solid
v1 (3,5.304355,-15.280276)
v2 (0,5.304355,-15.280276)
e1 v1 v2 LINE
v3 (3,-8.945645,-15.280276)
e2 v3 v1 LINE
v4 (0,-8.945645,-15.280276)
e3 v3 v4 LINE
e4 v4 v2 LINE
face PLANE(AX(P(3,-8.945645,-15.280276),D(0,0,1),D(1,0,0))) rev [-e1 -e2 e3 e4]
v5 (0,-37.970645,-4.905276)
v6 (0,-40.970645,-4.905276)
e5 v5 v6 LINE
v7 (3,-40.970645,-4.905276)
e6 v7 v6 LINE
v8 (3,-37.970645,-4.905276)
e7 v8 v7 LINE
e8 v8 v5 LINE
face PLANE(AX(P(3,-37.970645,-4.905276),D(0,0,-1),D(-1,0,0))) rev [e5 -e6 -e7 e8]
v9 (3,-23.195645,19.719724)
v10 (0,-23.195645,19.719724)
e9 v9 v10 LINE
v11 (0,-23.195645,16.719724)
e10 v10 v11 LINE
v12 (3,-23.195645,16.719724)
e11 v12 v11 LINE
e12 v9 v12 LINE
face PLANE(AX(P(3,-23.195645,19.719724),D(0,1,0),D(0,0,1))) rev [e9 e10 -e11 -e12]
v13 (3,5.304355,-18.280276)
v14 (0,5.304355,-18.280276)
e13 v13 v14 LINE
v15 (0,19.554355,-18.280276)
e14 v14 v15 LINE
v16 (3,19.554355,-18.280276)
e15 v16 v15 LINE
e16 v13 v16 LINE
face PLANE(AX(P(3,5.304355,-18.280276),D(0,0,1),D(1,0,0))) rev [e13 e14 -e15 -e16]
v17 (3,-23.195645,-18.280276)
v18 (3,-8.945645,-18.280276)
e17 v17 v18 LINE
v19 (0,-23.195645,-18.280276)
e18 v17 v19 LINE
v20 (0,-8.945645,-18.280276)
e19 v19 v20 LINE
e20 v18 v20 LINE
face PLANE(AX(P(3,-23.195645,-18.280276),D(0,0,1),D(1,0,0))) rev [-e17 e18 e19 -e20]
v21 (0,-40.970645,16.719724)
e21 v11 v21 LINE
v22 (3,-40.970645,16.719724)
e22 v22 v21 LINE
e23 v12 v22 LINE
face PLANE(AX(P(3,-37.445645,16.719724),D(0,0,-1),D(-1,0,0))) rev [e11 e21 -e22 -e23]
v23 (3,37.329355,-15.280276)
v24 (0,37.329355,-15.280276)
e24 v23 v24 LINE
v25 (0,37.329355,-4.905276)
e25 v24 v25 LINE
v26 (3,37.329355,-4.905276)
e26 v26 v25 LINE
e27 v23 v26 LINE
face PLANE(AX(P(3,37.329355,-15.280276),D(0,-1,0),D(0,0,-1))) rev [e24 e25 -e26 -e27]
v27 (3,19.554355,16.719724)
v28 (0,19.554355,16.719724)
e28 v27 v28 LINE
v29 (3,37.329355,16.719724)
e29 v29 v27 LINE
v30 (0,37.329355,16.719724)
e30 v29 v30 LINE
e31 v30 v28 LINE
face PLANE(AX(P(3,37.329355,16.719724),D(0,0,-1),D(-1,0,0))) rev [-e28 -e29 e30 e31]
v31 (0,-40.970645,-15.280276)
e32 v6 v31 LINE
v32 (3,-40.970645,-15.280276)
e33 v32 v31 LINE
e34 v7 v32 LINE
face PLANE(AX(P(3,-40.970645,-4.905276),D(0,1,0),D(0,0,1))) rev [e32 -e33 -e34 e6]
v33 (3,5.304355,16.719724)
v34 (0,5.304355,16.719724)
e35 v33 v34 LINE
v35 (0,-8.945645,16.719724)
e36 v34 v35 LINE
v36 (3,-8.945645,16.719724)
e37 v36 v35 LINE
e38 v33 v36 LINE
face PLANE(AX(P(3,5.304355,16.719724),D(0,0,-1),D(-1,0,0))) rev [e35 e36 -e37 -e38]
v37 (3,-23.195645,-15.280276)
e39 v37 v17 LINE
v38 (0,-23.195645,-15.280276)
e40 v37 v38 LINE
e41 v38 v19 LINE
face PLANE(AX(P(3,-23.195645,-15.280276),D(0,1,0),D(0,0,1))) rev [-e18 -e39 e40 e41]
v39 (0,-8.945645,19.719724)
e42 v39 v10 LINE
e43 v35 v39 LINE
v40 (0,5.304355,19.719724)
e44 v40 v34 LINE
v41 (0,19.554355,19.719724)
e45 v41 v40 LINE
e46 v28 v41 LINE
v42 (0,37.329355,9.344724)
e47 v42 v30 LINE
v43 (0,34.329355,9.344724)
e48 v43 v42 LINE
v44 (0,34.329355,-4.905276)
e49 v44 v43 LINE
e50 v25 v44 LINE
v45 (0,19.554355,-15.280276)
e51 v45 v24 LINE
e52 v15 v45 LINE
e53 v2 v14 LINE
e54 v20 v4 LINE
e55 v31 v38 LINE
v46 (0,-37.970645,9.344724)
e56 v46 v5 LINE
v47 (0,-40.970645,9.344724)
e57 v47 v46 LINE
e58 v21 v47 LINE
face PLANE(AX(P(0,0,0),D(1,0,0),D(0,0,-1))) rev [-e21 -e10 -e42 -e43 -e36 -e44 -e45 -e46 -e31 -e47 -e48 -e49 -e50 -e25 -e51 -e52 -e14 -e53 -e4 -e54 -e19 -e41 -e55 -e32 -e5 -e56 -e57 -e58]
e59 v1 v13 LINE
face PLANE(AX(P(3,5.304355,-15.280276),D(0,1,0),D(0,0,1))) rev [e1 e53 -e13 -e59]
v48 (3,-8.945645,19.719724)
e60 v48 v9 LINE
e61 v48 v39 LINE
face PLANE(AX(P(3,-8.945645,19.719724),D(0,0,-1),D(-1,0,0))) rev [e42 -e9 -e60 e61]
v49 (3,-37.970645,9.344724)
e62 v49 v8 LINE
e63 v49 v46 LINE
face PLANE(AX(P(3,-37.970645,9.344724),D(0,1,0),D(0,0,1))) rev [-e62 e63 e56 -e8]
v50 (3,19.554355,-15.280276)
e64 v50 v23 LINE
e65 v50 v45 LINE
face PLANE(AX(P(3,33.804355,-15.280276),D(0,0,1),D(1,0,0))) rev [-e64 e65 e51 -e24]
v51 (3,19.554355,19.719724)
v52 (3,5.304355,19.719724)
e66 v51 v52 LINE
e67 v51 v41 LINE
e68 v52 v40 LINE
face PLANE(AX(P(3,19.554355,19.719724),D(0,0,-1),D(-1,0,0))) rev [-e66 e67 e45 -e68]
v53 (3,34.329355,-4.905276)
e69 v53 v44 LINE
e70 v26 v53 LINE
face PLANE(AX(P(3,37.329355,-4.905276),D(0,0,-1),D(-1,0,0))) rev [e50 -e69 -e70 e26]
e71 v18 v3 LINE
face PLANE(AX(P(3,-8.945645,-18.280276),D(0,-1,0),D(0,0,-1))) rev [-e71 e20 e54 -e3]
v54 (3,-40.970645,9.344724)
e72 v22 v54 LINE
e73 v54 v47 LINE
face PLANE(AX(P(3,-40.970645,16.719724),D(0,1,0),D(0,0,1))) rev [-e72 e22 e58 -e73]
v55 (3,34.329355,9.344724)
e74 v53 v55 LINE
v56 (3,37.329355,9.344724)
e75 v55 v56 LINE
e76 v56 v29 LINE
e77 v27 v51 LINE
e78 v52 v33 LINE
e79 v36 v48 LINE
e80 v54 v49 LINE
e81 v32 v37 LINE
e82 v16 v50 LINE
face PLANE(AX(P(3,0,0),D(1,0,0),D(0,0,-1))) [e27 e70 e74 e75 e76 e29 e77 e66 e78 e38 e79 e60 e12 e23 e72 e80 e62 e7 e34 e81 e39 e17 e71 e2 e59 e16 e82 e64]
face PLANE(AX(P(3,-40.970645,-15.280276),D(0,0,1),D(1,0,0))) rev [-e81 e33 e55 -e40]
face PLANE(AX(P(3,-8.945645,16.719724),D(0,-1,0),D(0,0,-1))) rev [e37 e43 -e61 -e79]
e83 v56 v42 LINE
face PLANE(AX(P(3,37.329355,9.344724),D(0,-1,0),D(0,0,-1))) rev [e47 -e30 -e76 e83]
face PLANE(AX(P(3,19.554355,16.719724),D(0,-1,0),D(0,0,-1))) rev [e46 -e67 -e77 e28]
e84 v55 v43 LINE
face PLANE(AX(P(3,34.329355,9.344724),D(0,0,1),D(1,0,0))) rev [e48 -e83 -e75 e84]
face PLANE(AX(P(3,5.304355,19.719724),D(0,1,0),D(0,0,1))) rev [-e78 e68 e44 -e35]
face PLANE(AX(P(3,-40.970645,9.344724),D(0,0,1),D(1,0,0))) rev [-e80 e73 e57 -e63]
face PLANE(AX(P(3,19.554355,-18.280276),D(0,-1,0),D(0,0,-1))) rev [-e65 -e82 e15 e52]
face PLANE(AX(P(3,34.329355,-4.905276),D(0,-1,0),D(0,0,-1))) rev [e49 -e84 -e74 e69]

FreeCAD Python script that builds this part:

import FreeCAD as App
import Part
import Sketcher
from FreeCAD import Vector

doc = App.newDocument("Part")
body = doc.addObject("PartDesign::Body", "Body")

sketch1 = body.newObject("Sketcher::SketchObject", "Sketch")
sketch1.AttachmentSupport = (doc.getObject("YZ_Plane"), [""])
sketch1.MapMode = "FlatFace"
sketch1.addGeometry(Part.LineSegment(Vector(37.3, 16.7, 0), Vector(19.6, 16.7, 0)), False)
sketch1.addGeometry(Part.LineSegment(Vector(19.6, 16.7, 0), Vector(19.6, 19.7, 0)), False)
sketch1.addGeometry(Part.LineSegment(Vector(19.6, 19.7, 0), Vector(5.3, 19.7, 0)), False)
sketch1.addGeometry(Part.LineSegment(Vector(5.3, 19.7, 0), Vector(5.3, 16.7, 0)), False)
sketch1.addGeometry(Part.LineSegment(Vector(5.3, 16.7, 0), Vector(-8.9, 16.7, 0)), False)
sketch1.addGeometry(Part.LineSegment(Vector(-8.9, 16.7, 0), Vector(-8.9, 19.7, 0)), False)
sketch1.addGeometry(Part.LineSegment(Vector(-8.9, 19.7, 0), Vector(-23.2, 19.7, 0)), False)
sketch1.addGeometry(Part.LineSegment(Vector(-23.2, 19.7, 0), Vector(-23.2, 16.7, 0)), False)
sketch1.addGeometry(Part.LineSegment(Vector(-23.2, 16.7, 0), Vector(-41, 16.7, 0)), False)
sketch1.addGeometry(Part.LineSegment(Vector(-41, 16.7, 0), Vector(-41, 9.3, 0)), False)
sketch1.addGeometry(Part.LineSegment(Vector(-41, 9.3, 0), Vector(-38, 9.3, 0)), False)
sketch1.addGeometry(Part.LineSegment(Vector(-38, 9.3, 0), Vector(-38, -4.9, 0)), False)
sketch1.addGeometry(Part.LineSegment(Vector(-38, -4.9, 0), Vector(-41, -4.9, 0)), False)
sketch1.addGeometry(Part.LineSegment(Vector(-41, -4.9, 0), Vector(-41, -15.3, 0)), False)
sketch1.addGeometry(Part.LineSegment(Vector(-41, -15.3, 0), Vector(-23.2, -15.3, 0)), False)
sketch1.addGeometry(Part.LineSegment(Vector(-23.2, -15.3, 0), Vector(-23.2, -18.3, 0)), False)
sketch1.addGeometry(Part.LineSegment(Vector(-23.2, -18.3, 0), Vector(-8.9, -18.3, 0)), False)
sketch1.addGeometry(Part.LineSegment(Vector(-8.9, -18.3, 0), Vector(-8.9, -15.3, 0)), False)
sketch1.addGeometry(Part.LineSegment(Vector(-8.9, -15.3, 0), Vector(5.3, -15.3, 0)), False)
sketch1.addGeometry(Part.LineSegment(Vector(5.3, -15.3, 0), Vector(5.3, -18.3, 0)), False)
sketch1.addGeometry(Part.LineSegment(Vector(5.3, -18.3, 0), Vector(19.6, -18.3, 0)), False)
sketch1.addGeometry(Part.LineSegment(Vector(19.6, -18.3, 0), Vector(19.6, -15.3, 0)), False)
sketch1.addGeometry(Part.LineSegment(Vector(19.6, -15.3, 0), Vector(37.3, -15.3, 0)), False)
sketch1.addGeometry(Part.LineSegment(Vector(37.3, -15.3, 0), Vector(37.3, -4.9, 0)), False)
sketch1.addGeometry(Part.LineSegment(Vector(37.3, -4.9, 0), Vector(34.3, -4.9, 0)), False)
sketch1.addGeometry(Part.LineSegment(Vector(34.3, -4.9, 0), Vector(34.3, 9.3, 0)), False)
sketch1.addGeometry(Part.LineSegment(Vector(34.3, 9.3, 0), Vector(37.3, 9.3, 0)), False)
sketch1.addGeometry(Part.LineSegment(Vector(37.3, 9.3, 0), Vector(37.3, 16.7, 0)), False)
sketch1.addConstraint(Sketcher.Constraint("Coincident", 0, 2, 1, 1))
sketch1.addConstraint(Sketcher.Constraint("Coincident", 1, 2, 2, 1))
sketch1.addConstraint(Sketcher.Constraint("Coincident", 2, 2, 3, 1))
sketch1.addConstraint(Sketcher.Constraint("Coincident", 3, 2, 4, 1))
sketch1.addConstraint(Sketcher.Constraint("Coincident", 4, 2, 5, 1))
sketch1.addConstraint(Sketcher.Constraint("Coincident", 5, 2, 6, 1))
sketch1.addConstraint(Sketcher.Constraint("Coincident", 6, 2, 7, 1))
sketch1.addConstraint(Sketcher.Constraint("Coincident", 7, 2, 8, 1))
sketch1.addConstraint(Sketcher.Constraint("Coincident", 8, 2, 9, 1))
sketch1.addConstraint(Sketcher.Constraint("Coincident", 9, 2, 10, 1))
sketch1.addConstraint(Sketcher.Constraint("Coincident", 10, 2, 11, 1))
sketch1.addConstraint(Sketcher.Constraint("Coincident", 11, 2, 12, 1))
sketch1.addConstraint(Sketcher.Constraint("Coincident", 12, 2, 13, 1))
sketch1.addConstraint(Sketcher.Constraint("Coincident", 13, 2, 14, 1))
sketch1.addConstraint(Sketcher.Constraint("Coincident", 14, 2, 15, 1))
sketch1.addConstraint(Sketcher.Constraint("Coincident", 15, 2, 16, 1))
sketch1.addConstraint(Sketcher.Constraint("Coincident", 16, 2, 17, 1))
sketch1.addConstraint(Sketcher.Constraint("Coincident", 17, 2, 18, 1))
sketch1.addConstraint(Sketcher.Constraint("Coincident", 18, 2, 19, 1))
sketch1.addConstraint(Sketcher.Constraint("Coincident", 19, 2, 20, 1))
sketch1.addConstraint(Sketcher.Constraint("Coincident", 20, 2, 21, 1))
sketch1.addConstraint(Sketcher.Constraint("Coincident", 21, 2, 22, 1))
sketch1.addConstraint(Sketcher.Constraint("Coincident", 22, 2, 23, 1))
sketch1.addConstraint(Sketcher.Constraint("Coincident", 23, 2, 24, 1))
sketch1.addConstraint(Sketcher.Constraint("Coincident", 24, 2, 25, 1))
sketch1.addConstraint(Sketcher.Constraint("Coincident", 25, 2, 26, 1))
sketch1.addConstraint(Sketcher.Constraint("Coincident", 26, 2, 27, 1))
sketch1.addConstraint(Sketcher.Constraint("Coincident", 27, 2, 0, 1))
sketch1.addConstraint(Sketcher.Constraint("Horizontal", 0))
sketch1.addConstraint(Sketcher.Constraint("Vertical", 1))
sketch1.addConstraint(Sketcher.Constraint("Horizontal", 2))
sketch1.addConstraint(Sketcher.Constraint("Vertical", 3))
sketch1.addConstraint(Sketcher.Constraint("Horizontal", 4))
sketch1.addConstraint(Sketcher.Constraint("Vertical", 5))
sketch1.addConstraint(Sketcher.Constraint("Horizontal", 6))
sketch1.addConstraint(Sketcher.Constraint("Vertical", 7))
sketch1.addConstraint(Sketcher.Constraint("Horizontal", 8))
sketch1.addConstraint(Sketcher.Constraint("Vertical", 9))
sketch1.addConstraint(Sketcher.Constraint("Horizontal", 10))
sketch1.addConstraint(Sketcher.Constraint("Vertical", 11))
sketch1.addConstraint(Sketcher.Constraint("Horizontal", 12))
sketch1.addConstraint(Sketcher.Constraint("Vertical", 13))
sketch1.addConstraint(Sketcher.Constraint("Horizontal", 14))
sketch1.addConstraint(Sketcher.Constraint("Vertical", 15))
sketch1.addConstraint(Sketcher.Constraint("Horizontal", 16))
sketch1.addConstraint(Sketcher.Constraint("Vertical", 17))
sketch1.addConstraint(Sketcher.Constraint("Horizontal", 18))
sketch1.addConstraint(Sketcher.Constraint("Vertical", 19))
sketch1.addConstraint(Sketcher.Constraint("Horizontal", 20))
sketch1.addConstraint(Sketcher.Constraint("Vertical", 21))
sketch1.addConstraint(Sketcher.Constraint("Horizontal", 22))
sketch1.addConstraint(Sketcher.Constraint("Vertical", 23))
sketch1.addConstraint(Sketcher.Constraint("Horizontal", 24))
sketch1.addConstraint(Sketcher.Constraint("Vertical", 25))
sketch1.addConstraint(Sketcher.Constraint("Horizontal", 26))
sketch1.addConstraint(Sketcher.Constraint("Vertical", 27))
sketch1.addConstraint(Sketcher.Constraint("Horizontal", 0, 2, 3, 2))
sketch1.addConstraint(Sketcher.Constraint("Horizontal", 2, 2, 5, 2))
sketch1.addConstraint(Sketcher.Constraint("Horizontal", 4, 2, 7, 2))
sketch1.addConstraint(Sketcher.Constraint("Horizontal", 14, 2, 17, 2))
sketch1.addConstraint(Sketcher.Constraint("Horizontal", 16, 2, 19, 2))
sketch1.addConstraint(Sketcher.Constraint("Horizontal", 18, 2, 21, 2))
sketch1.addConstraint(Sketcher.Constraint("Horizontal", 12, 2, 23, 2))
sketch1.addConstraint(Sketcher.Constraint("Horizontal", 10, 2, 25, 2))
sketch1.addConstraint(Sketcher.Constraint("Vertical", 9, 2, 12, 2))
sketch1.addConstraint(Sketcher.Constraint("Vertical", 7, 2, 14, 2))
sketch1.addConstraint(Sketcher.Constraint("Vertical", 5, 2, 16, 2))
sketch1.addConstraint(Sketcher.Constraint("Vertical", 3, 2, 18, 2))
sketch1.addConstraint(Sketcher.Constraint("Vertical", 1, 2, 20, 2))
sketch1.addConstraint(Sketcher.Constraint("Vertical", 23, 2, 26, 2))
sketch1.addConstraint(Sketcher.Constraint("Equal", 2, 4))
sketch1.addConstraint(Sketcher.Constraint("Equal", 4, 6))
sketch1.addConstraint(Sketcher.Constraint("Equal", 0, 8))
sketch1.addConstraint(Sketcher.Constraint("Equal", 12, 24))
sketch1.addConstraint(Sketcher.Constraint("Equal", 26, 1))
sketch1.addConstraint(Sketcher.Constraint("Equal", 20, 11))
sketch1.addConstraint(Sketcher.Constraint("Equal", 7, 15))
sketch1.addConstraint(Sketcher.Constraint("DistanceX", 10, 1, 10, 2, 3.0))
sketch1.addConstraint(Sketcher.Constraint("DistanceY", 13, 2, 8, 2, 32.0))
sketch1.addConstraint(Sketcher.Constraint("DistanceX", 2, 2, 2, 1, 14.25))
sketch1.addConstraint(Sketcher.Constraint("DistanceX", 0, 2, 0, 1, 17.775))
sketch1.addConstraint(Sketcher.Constraint("DistanceY", 9, 2, 9, 1, 7.375))
sketch1.addConstraint(Sketcher.Constraint("DistanceX", -1, 1, 0, 2, 19.554355))
sketch1.addConstraint(Sketcher.Constraint("DistanceY", -1, 1, 0, 2, 16.719724))
pad1 = body.newObject("PartDesign::Pad", "Pad")
pad1.Profile = sketch1
pad1.Length = 3

doc.recompute()
